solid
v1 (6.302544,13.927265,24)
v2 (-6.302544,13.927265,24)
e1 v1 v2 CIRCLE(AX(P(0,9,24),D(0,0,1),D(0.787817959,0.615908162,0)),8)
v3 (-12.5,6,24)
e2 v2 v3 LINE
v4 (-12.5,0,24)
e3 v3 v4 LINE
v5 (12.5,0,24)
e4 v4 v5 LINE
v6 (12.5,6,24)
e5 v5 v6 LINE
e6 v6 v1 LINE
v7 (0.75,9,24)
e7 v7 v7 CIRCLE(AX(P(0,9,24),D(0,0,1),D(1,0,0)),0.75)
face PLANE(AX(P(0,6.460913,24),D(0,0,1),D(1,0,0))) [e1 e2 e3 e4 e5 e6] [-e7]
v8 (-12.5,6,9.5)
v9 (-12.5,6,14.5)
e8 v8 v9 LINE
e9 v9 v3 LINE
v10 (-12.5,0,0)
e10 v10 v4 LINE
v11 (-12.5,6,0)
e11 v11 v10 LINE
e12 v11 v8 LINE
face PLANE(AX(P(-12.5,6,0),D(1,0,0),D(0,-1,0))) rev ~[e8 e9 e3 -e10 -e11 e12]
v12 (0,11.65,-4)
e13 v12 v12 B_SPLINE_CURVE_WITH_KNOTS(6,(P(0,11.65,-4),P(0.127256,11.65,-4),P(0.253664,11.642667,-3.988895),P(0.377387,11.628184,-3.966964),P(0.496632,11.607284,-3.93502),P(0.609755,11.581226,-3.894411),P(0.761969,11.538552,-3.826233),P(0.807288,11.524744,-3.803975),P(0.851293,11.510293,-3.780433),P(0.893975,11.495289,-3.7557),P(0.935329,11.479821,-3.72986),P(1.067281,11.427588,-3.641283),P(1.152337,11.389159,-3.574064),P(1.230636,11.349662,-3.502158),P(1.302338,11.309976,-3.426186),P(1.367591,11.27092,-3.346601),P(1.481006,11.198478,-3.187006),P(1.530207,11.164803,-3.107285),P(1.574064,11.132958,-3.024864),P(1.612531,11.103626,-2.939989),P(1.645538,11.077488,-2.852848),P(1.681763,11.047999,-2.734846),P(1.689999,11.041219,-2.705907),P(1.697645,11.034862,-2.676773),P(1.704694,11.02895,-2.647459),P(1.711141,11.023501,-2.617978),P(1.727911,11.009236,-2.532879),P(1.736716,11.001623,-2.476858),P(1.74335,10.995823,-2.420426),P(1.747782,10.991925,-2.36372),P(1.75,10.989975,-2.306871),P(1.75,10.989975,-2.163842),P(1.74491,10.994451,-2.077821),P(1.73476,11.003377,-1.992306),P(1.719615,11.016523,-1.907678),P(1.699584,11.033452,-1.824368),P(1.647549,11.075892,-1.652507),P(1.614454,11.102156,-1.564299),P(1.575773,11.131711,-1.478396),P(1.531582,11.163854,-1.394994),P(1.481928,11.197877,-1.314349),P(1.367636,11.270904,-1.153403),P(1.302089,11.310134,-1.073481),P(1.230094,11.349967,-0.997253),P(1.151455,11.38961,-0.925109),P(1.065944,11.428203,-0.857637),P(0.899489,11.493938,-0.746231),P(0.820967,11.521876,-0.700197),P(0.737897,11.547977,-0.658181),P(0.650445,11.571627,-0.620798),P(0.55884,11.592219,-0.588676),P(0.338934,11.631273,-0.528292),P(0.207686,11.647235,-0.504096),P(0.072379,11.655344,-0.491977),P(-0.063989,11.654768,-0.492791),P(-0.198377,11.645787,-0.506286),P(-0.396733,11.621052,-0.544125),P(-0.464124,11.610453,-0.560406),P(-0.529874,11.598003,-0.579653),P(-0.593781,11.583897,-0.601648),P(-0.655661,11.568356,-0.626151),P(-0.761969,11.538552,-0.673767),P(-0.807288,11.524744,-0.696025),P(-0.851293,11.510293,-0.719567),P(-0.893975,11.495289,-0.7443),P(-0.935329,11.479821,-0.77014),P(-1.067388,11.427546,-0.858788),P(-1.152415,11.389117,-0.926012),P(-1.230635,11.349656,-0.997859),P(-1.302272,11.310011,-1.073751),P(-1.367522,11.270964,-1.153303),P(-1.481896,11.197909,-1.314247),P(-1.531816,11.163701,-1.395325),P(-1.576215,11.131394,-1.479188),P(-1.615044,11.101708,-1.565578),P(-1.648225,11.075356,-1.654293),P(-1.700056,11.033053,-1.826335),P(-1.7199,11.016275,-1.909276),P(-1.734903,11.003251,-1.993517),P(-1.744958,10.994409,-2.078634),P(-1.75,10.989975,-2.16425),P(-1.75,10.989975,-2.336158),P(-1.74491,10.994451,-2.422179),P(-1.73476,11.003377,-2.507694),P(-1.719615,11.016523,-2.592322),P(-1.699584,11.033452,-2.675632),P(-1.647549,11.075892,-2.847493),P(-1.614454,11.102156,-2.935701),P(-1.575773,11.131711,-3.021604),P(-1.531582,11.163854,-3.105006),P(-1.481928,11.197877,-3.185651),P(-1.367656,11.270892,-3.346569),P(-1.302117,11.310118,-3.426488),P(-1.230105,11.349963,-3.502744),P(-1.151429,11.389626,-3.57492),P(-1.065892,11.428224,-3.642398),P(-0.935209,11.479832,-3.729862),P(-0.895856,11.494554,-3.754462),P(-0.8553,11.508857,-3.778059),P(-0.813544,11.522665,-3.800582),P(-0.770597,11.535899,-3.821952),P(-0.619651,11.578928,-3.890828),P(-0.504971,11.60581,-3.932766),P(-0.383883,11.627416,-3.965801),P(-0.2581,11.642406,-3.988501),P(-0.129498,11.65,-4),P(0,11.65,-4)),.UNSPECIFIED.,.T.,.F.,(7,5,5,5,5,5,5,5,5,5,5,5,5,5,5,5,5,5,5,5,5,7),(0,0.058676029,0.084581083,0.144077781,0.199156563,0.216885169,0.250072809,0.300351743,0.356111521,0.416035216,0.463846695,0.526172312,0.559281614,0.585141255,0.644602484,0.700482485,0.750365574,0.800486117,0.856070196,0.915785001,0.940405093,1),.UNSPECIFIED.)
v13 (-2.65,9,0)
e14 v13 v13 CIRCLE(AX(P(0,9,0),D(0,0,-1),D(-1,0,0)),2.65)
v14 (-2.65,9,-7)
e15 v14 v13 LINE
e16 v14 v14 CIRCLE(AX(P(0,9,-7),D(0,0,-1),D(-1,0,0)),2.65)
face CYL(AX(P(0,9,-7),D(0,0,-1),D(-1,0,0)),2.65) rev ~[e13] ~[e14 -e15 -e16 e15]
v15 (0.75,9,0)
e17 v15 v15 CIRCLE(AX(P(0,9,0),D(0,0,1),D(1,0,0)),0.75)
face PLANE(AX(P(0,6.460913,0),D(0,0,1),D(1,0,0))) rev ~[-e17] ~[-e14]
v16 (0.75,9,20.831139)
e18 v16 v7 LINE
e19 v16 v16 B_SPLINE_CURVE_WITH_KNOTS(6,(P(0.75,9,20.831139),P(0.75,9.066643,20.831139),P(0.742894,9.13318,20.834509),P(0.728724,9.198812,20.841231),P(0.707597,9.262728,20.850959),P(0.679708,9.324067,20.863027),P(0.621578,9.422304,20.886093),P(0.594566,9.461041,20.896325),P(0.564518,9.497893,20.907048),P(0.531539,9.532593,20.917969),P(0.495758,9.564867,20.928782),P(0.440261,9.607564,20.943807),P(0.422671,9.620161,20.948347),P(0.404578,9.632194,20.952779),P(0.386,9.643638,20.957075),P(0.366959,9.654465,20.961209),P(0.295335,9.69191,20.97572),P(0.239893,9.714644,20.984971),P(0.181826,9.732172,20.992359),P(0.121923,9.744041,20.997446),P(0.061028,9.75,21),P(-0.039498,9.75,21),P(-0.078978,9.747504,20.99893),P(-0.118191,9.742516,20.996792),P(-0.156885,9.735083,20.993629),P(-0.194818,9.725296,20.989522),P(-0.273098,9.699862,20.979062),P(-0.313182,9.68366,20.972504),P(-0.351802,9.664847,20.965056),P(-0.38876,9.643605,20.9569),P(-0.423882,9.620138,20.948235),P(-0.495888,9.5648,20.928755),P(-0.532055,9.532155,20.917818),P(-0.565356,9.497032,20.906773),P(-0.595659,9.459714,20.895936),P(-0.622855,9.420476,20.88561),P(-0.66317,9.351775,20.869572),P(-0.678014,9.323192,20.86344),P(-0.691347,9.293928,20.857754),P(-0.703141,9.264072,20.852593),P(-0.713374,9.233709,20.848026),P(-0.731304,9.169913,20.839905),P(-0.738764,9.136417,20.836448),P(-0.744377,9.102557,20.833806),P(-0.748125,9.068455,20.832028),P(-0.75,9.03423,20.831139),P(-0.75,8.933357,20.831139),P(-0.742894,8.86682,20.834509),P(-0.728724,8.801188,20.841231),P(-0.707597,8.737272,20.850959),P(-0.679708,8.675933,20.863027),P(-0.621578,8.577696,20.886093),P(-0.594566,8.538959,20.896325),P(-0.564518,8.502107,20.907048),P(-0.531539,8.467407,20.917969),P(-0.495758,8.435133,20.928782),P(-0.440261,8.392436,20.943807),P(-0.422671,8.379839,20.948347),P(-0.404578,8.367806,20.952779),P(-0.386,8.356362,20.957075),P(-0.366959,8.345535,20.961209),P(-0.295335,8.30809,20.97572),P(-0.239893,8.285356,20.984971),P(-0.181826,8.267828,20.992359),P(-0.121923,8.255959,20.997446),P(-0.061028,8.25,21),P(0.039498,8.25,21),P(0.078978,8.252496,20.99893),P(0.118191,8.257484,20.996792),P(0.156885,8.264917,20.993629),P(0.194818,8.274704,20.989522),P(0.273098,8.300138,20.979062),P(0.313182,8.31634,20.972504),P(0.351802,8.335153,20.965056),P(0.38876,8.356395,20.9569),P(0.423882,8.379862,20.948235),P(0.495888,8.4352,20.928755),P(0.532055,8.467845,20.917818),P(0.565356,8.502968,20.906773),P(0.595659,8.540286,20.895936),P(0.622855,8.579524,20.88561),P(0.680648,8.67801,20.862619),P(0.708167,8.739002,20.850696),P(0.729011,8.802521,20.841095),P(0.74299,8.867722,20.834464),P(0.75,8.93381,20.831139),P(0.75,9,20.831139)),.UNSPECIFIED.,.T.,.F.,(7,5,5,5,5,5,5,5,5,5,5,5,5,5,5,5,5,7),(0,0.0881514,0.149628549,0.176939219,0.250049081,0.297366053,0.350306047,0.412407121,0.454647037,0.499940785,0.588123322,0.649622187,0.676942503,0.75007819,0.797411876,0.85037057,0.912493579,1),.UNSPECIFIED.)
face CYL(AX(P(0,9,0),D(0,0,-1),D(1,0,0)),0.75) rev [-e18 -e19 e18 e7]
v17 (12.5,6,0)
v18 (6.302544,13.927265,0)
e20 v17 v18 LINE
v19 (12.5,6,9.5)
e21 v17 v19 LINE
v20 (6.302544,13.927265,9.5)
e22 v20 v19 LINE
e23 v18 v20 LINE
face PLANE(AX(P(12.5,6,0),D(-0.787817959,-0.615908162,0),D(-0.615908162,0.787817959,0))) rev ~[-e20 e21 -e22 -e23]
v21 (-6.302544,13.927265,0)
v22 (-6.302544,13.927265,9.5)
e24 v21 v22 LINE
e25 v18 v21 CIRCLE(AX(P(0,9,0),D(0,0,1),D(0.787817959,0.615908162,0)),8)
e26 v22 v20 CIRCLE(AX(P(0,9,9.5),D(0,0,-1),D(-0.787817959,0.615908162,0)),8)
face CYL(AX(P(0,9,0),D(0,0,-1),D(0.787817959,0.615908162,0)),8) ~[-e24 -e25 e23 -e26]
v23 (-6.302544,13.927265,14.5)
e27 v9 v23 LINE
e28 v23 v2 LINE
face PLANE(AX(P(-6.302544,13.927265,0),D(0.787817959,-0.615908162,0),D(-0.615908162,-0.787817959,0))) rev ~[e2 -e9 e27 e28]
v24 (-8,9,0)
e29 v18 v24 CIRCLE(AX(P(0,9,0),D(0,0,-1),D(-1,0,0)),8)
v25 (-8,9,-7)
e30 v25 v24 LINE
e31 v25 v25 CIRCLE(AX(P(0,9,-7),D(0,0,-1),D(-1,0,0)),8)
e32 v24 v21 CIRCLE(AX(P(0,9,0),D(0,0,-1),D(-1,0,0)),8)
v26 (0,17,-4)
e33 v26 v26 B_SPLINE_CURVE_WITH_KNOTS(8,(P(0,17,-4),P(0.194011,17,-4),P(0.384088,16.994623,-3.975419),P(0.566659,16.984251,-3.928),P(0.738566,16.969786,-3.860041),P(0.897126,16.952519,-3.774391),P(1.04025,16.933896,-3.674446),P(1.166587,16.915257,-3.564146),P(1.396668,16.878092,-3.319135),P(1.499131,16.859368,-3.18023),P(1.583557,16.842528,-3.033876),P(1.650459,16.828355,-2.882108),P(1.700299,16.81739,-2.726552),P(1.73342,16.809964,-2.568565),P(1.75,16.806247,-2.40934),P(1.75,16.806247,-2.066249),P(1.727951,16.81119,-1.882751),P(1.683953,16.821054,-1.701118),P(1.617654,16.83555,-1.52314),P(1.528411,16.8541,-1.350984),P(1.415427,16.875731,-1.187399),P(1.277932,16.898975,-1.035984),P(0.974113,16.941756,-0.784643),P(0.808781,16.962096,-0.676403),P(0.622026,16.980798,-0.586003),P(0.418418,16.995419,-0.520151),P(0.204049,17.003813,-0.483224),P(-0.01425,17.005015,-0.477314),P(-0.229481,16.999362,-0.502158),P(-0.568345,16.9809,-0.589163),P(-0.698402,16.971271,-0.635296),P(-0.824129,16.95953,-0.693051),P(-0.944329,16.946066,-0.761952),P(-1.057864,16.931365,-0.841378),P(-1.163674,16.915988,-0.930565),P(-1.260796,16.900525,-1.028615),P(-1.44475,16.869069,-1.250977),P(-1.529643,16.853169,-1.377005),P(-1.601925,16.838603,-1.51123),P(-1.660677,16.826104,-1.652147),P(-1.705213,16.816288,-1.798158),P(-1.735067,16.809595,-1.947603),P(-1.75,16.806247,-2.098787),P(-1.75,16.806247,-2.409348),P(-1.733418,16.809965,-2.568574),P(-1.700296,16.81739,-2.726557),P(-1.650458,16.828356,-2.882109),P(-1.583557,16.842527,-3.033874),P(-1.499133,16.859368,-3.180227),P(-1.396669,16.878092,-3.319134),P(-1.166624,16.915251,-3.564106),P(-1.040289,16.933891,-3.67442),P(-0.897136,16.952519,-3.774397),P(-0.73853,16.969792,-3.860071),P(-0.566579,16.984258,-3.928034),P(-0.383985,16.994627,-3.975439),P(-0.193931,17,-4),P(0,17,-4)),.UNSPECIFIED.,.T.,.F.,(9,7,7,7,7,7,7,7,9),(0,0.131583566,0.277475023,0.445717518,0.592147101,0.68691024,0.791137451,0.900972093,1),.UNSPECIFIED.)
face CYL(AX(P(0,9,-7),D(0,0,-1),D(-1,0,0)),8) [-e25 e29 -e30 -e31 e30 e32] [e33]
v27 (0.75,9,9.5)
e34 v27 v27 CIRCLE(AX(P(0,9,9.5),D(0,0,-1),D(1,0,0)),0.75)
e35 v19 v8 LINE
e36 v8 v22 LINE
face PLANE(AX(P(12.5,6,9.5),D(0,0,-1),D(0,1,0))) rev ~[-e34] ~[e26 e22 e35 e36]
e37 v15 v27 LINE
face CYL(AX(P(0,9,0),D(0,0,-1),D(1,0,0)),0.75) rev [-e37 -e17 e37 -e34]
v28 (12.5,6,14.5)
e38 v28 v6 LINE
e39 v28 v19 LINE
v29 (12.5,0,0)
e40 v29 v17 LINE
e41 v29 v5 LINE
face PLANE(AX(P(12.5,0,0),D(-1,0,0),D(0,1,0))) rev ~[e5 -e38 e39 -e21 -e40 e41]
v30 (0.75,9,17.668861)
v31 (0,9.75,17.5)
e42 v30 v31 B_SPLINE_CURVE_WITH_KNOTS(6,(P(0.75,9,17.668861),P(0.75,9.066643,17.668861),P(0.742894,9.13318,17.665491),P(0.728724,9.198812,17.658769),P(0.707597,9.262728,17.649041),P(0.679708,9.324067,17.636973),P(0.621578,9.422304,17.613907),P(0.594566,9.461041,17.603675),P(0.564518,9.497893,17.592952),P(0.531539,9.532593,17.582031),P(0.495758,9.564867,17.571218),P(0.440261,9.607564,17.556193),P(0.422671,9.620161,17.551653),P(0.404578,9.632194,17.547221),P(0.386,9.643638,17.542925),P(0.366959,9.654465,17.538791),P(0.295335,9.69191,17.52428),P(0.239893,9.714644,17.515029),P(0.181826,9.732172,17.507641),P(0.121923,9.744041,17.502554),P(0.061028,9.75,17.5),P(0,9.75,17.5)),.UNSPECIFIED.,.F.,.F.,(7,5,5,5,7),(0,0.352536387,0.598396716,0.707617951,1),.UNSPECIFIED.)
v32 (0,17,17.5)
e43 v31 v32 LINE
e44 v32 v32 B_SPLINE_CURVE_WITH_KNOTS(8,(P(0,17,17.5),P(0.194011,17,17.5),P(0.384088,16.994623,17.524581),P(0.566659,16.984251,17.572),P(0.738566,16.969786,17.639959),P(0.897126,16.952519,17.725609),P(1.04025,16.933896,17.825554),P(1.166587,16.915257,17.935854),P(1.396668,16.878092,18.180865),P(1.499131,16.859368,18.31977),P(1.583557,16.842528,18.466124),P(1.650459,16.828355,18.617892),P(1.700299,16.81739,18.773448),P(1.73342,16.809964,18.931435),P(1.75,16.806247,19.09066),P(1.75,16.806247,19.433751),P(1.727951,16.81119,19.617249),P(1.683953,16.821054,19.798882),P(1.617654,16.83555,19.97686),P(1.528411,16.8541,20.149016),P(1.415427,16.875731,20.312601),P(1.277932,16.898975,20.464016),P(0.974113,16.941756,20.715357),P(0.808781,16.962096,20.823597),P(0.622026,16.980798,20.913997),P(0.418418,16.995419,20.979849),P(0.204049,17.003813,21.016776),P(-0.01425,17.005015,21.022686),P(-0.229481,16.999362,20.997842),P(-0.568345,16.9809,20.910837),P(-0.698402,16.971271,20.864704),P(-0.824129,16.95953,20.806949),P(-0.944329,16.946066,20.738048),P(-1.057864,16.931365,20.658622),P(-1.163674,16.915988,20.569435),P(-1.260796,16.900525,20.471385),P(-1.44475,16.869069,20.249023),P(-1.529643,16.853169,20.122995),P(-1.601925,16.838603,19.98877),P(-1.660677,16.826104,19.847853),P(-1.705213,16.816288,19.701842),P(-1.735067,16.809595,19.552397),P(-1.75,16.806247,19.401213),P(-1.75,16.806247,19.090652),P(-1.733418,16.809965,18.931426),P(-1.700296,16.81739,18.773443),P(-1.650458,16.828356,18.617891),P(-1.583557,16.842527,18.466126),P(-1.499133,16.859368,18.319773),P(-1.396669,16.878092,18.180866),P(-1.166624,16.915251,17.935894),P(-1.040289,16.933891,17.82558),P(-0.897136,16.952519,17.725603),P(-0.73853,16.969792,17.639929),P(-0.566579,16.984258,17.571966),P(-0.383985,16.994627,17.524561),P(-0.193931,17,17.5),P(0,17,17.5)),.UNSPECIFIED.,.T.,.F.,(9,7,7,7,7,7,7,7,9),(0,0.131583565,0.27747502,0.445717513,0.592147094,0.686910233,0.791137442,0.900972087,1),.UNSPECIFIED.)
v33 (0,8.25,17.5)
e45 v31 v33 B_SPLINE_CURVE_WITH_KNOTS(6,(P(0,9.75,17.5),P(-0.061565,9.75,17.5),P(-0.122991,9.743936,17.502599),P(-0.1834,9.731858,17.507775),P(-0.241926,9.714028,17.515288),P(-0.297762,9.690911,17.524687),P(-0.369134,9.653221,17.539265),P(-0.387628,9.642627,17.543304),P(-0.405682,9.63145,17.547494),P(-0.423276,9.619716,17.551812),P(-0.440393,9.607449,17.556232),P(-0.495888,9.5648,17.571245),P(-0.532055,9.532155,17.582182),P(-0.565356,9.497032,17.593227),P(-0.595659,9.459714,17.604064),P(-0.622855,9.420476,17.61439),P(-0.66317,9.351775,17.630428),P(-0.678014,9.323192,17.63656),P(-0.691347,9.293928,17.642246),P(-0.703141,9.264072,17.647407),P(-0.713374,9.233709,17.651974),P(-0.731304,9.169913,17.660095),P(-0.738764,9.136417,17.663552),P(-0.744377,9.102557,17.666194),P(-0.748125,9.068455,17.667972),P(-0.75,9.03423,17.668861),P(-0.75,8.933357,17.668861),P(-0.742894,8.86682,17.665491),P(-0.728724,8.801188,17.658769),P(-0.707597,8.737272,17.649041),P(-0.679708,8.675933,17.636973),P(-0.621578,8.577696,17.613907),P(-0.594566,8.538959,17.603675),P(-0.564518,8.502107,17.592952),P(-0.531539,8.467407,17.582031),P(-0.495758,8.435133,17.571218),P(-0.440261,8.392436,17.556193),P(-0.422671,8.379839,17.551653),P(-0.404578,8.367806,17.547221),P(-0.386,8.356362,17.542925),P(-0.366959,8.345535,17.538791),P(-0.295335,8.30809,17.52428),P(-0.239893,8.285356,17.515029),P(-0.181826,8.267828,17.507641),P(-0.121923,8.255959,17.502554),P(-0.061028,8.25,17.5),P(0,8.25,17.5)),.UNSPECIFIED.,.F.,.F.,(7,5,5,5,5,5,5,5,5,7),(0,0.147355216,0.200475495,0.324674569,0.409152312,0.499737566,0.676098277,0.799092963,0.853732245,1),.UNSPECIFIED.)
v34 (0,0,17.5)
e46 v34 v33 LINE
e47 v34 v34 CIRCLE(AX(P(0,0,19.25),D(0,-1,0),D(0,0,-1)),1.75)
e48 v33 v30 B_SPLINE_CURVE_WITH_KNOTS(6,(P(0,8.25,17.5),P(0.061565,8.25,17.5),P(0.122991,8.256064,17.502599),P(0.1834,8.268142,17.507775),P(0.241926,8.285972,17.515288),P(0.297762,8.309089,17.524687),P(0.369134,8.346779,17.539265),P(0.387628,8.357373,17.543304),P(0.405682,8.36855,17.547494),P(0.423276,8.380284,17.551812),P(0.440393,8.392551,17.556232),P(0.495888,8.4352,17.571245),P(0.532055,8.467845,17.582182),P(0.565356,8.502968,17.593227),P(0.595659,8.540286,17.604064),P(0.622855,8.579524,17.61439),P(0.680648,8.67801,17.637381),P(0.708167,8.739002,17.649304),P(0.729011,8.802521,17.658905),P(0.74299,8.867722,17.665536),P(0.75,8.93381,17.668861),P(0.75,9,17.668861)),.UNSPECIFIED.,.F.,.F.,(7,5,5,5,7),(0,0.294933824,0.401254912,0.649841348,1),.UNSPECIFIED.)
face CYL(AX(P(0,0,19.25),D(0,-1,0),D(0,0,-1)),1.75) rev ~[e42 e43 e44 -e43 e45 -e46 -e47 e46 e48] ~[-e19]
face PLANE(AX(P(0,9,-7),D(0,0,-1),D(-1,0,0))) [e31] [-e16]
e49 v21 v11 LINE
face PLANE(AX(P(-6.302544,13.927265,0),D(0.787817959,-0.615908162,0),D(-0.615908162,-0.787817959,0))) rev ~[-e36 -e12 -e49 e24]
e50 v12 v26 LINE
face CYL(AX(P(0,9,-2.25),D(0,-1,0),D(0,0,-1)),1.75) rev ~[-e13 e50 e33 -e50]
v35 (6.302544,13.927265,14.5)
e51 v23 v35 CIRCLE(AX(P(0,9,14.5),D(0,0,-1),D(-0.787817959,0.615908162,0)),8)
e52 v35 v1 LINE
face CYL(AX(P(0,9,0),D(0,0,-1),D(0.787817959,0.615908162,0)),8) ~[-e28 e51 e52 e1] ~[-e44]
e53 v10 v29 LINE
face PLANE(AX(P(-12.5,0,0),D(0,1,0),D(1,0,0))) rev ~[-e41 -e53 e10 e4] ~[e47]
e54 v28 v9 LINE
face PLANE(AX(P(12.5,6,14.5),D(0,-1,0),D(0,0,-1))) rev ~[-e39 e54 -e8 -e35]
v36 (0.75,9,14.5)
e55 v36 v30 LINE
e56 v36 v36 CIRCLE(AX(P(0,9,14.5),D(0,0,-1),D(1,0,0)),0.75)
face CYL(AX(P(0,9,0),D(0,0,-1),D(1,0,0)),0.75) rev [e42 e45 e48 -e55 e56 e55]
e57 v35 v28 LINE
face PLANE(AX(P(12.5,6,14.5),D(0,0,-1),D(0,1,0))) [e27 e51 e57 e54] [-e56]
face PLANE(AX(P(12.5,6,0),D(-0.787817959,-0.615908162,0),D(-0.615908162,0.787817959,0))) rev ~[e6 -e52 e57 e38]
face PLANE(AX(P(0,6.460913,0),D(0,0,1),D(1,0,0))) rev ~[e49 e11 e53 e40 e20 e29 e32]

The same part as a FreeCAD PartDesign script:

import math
import FreeCAD as App
import Part
import Sketcher
from FreeCAD import Vector

doc = App.newDocument("Part")
body = doc.addObject("PartDesign::Body", "Body")

# Sketch on XY plane
sketch1 = doc.addObject("Sketcher::SketchObject", "Sketch")
body.addObject(sketch1)
sketch1.AttachmentSupport = (doc.XY_Plane, [""])
sketch1.MapMode = "FlatFace"
sketch1.addGeometry([
    Part.LineSegment(Vector(-12.5, 0, 0), Vector(12.5, 0, 0)),  # 0
    Part.LineSegment(Vector(12.5, 0, 0), Vector(12.5, 6, 0)),  # 1
    Part.LineSegment(Vector(12.5, 6, 0), Vector(6.3, 13.9, 0)),  # 2
    Part.ArcOfCircle(Part.Circle(Vector(0, 9, 0), Vector(0, 0, 1), 8), math.radians(38), math.radians(142)),  # 3
    Part.LineSegment(Vector(-6.3, 13.9, 0), Vector(-12.5, 6, 0)),  # 4
    Part.LineSegment(Vector(-12.5, 6, 0), Vector(-12.5, 0, 0)),  # 5
    Part.Circle(Vector(0, 9, 0), Vector(0, 0, 1), 0.8),  # 6
], False)
sketch1.addConstraint([
    Sketcher.Constraint("Coincident", 0, 2, 1, 1),
    Sketcher.Constraint("Coincident", 1, 2, 2, 1),
    Sketcher.Constraint("Tangent", 2, 2, 3, 1),
    Sketcher.Constraint("Tangent", 3, 2, 4, 1),
    Sketcher.Constraint("Coincident", 4, 2, 5, 1),
    Sketcher.Constraint("Coincident", 5, 2, 0, 1),
    Sketcher.Constraint("Horizontal", 0),
    Sketcher.Constraint("Vertical", 1),
    Sketcher.Constraint("Vertical", 5),
    Sketcher.Constraint("Coincident", 6, 3, 3, 3),
    Sketcher.Constraint("Symmetric", 0, 2, 5, 2, -1, 1),
    Sketcher.Constraint("Symmetric", 2, 2, 3, 2, -2),
    Sketcher.Constraint("Radius", 3, 8.0),
    Sketcher.Constraint("Diameter", 6, 1.5),
    Sketcher.Constraint("DistanceX", 0, 1, 0, 2, 25.0),
    Sketcher.Constraint("DistanceY", 1, 1, 1, 2, 6.0),
    Sketcher.Constraint("DistanceY", -1, 1, 3, 3, 9.0),
])
pad1 = doc.addObject("PartDesign::Pad", "Pad")
body.addObject(pad1)
pad1.Profile = sketch1
pad1.Length = 24

# Sketch on XY plane
sketch2 = doc.addObject("Sketcher::SketchObject", "Sketch001")
body.addObject(sketch2)
sketch2.AttachmentSupport = (doc.XY_Plane, [""])
sketch2.MapMode = "FlatFace"
sketch2.AttachmentOffset = App.Placement(Vector(0, 0, -7), App.Rotation())
sketch2.addGeometry([
    Part.Circle(Vector(0, 9, 0), Vector(0, 0, 1), 8),
    Part.Circle(Vector(0, 9, 0), Vector(0, 0, 1), 2.6),
], False)
sketch2.addConstraint([
    Sketcher.Constraint("Coincident", 1, 3, 0, 3),
    Sketcher.Constraint("PointOnObject", 0, 3, -2),
    Sketcher.Constraint("Diameter", 0, 16.0),
    Sketcher.Constraint("Diameter", 1, 5.3),
    Sketcher.Constraint("DistanceY", -1, 1, 0, 3, 9.0),
])
pad2 = doc.addObject("PartDesign::Pad", "Pad001")
body.addObject(pad2)
pad2.Profile = sketch2
pad2.Length = 7

# Sketch on YZ plane
sketch3 = doc.addObject("Sketcher::SketchObject", "Sketch002")
body.addObject(sketch3)
sketch3.AttachmentSupport = (doc.YZ_Plane, [""])
sketch3.MapMode = "FlatFace"
sketch3.AttachmentOffset = App.Placement(Vector(0, 0, 12.5), App.Rotation())
sketch3.addGeometry([
    Part.LineSegment(Vector(17, 14, 0), Vector(6, 14, 0)),
    Part.LineSegment(Vector(6, 14, 0), Vector(6, 10, 0)),
    Part.LineSegment(Vector(6, 10, 0), Vector(17, 10, 0)),
    Part.LineSegment(Vector(17, 10, 0), Vector(17, 14, 0)),
], False)
sketch3.addConstraint([
    Sketcher.Constraint("Coincident", 0, 2, 1, 1),
    Sketcher.Constraint("Coincident", 1, 2, 2, 1),
    Sketcher.Constraint("Coincident", 2, 2, 3, 1),
    Sketcher.Constraint("Coincident", 3, 2, 0, 1),
    Sketcher.Constraint("Horizontal", 0),
    Sketcher.Constraint("Vertical", 1),
    Sketcher.Constraint("Horizontal", 2),
    Sketcher.Constraint("Vertical", 3),
    Sketcher.Constraint("DistanceX", 0, 2, 0, 1, 11.0),
    Sketcher.Constraint("DistanceY", 1, 2, 1, 1, 5.0),
    Sketcher.Constraint("DistanceX", -1, 1, 0, 2, 6.0),
    Sketcher.Constraint("DistanceY", -1, 1, 0, 2, 14.5),
])
pocket1 = doc.addObject("PartDesign::Pocket", "Pocket")
body.addObject(pocket1)
pocket1.Profile = sketch3
pocket1.Type = "ThroughAll"

# Sketch on XZ plane
sketch4 = doc.addObject("Sketcher::SketchObject", "Sketch003")
body.addObject(sketch4)
sketch4.AttachmentSupport = (doc.XZ_Plane, [""])
sketch4.MapMode = "FlatFace"
sketch4.addGeometry(Part.Circle(Vector(0, 19.2, 0), Vector(0, 0, 1), 1.8), False)
sketch4.addConstraint([
    Sketcher.Constraint("PointOnObject", 0, 3, -2),
    Sketcher.Constraint("Diameter", 0, 3.5),
    Sketcher.Constraint("DistanceY", -1, 1, 0, 3, 19.25),
])
pocket2 = doc.addObject("PartDesign::Pocket", "Pocket001")
body.addObject(pocket2)
pocket2.Profile = sketch4
pocket2.Type = "ThroughAll"

# Sketch on XZ plane
sketch5 = doc.addObject("Sketcher::SketchObject", "Sketch004")
body.addObject(sketch5)
sketch5.AttachmentSupport = (doc.XZ_Plane, [""])
sketch5.MapMode = "FlatFace"
sketch5.AttachmentOffset = App.Placement(Vector(0, 0, -9), App.Rotation())
sketch5.addGeometry(Part.Circle(Vector(0, -2.2, 0), Vector(0, 0, 1), 1.8), False)
sketch5.addConstraint([
    Sketcher.Constraint("PointOnObject", 0, 3, -2),
    Sketcher.Constraint("Diameter", 0, 3.5),
    Sketcher.Constraint("DistanceY", 0, 3, -1, 1, 2.25),
])
pocket3 = doc.addObject("PartDesign::Pocket", "Pocket002")
body.addObject(pocket3)
pocket3.Profile = sketch5
pocket3.Type = "ThroughAll"

doc.recompute()
